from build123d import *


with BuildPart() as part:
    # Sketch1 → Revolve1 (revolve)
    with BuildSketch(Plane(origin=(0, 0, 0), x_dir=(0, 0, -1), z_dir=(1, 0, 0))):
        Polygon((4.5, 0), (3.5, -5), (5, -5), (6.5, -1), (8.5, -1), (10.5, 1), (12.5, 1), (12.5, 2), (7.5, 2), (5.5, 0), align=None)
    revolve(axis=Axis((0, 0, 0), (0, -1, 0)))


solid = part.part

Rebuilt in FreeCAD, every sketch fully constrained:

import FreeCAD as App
import Part
import Sketcher
Q = App.Units.Quantity


def add_polygon(sketch, points):
    """Adds a closed chain of lines whose ends are joined by coincident constraints."""
    first, n = sketch.GeometryCount, len(points)
    for a, b in zip(points, points[1:] + points[:1]):
        sketch.addGeometry(Part.LineSegment(App.Vector(*a, 0), App.Vector(*b, 0)), False)
    for i in range(n):
        sketch.addConstraint(Sketcher.Constraint("Coincident", first + i, 2, first + (i + 1) % n, 1))

doc = App.newDocument("Part")
body = doc.addObject("PartDesign::Body", "Body")

# Sketch on YZ plane
sketch1 = body.newObject("Sketcher::SketchObject", "Sketch")
sketch1.AttachmentSupport = (doc.getObject("YZ_Plane"), [""])
sketch1.MapMode = "FlatFace"
add_polygon(sketch1, [(0, -4.5), (-5, -3.5), (-5, -5), (-1, -6.5), (-1, -8.5), (1, -10.5), (1, -12.5), (2, -12.5), (2, -7.5), (0, -5.5)])  # lines 0-9
sketch1.addConstraint([
    Sketcher.Constraint("Vertical", 1),
    Sketcher.Constraint("Vertical", 3),
    Sketcher.Constraint("Vertical", 5),
    Sketcher.Constraint("Horizontal", 6),
    Sketcher.Constraint("Vertical", 7),
    Sketcher.Constraint("Vertical", 9),
    Sketcher.Constraint("PointOnObject", 8, 2, -2),
    Sketcher.Constraint("Parallel", 4, 8),
    Sketcher.Constraint("Equal", 3, 5),
    Sketcher.Constraint("Equal", 6, 9),
    Sketcher.Constraint("Equal", 4, 8),
    Sketcher.Constraint("DistanceX", 6, 1, 6, 2, Q("1 mm")),
    Sketcher.Constraint("DistanceY", 3, 2, 3, 1, Q("2 mm")),
    Sketcher.Constraint("DistanceY", 7, 1, 7, 2, Q("5 mm")),
    Sketcher.Constraint("Angle", 4, Q("-45 deg")),
    Sketcher.Constraint("DistanceY", 1, 2, 1, 1, Q("1.5 mm")),
    Sketcher.Constraint("DistanceX", 0, 2, -1, 1, Q("5 mm")),
    Sketcher.Constraint("DistanceY", 1, 2, -1, 1, Q("5 mm")),
    Sketcher.Constraint("DistanceX", -1, 1, 4, 2, Q("1 mm")),
    Sketcher.Constraint("DistanceY", 2, 2, 0, 2, Q("3 mm")),
])
revolution = body.newObject("PartDesign::Revolution", "Revolution")
revolution.Profile = sketch1
revolution.ReferenceAxis = (sketch1, ["H_Axis"])
revolution.Angle = 360

doc.recompute()
